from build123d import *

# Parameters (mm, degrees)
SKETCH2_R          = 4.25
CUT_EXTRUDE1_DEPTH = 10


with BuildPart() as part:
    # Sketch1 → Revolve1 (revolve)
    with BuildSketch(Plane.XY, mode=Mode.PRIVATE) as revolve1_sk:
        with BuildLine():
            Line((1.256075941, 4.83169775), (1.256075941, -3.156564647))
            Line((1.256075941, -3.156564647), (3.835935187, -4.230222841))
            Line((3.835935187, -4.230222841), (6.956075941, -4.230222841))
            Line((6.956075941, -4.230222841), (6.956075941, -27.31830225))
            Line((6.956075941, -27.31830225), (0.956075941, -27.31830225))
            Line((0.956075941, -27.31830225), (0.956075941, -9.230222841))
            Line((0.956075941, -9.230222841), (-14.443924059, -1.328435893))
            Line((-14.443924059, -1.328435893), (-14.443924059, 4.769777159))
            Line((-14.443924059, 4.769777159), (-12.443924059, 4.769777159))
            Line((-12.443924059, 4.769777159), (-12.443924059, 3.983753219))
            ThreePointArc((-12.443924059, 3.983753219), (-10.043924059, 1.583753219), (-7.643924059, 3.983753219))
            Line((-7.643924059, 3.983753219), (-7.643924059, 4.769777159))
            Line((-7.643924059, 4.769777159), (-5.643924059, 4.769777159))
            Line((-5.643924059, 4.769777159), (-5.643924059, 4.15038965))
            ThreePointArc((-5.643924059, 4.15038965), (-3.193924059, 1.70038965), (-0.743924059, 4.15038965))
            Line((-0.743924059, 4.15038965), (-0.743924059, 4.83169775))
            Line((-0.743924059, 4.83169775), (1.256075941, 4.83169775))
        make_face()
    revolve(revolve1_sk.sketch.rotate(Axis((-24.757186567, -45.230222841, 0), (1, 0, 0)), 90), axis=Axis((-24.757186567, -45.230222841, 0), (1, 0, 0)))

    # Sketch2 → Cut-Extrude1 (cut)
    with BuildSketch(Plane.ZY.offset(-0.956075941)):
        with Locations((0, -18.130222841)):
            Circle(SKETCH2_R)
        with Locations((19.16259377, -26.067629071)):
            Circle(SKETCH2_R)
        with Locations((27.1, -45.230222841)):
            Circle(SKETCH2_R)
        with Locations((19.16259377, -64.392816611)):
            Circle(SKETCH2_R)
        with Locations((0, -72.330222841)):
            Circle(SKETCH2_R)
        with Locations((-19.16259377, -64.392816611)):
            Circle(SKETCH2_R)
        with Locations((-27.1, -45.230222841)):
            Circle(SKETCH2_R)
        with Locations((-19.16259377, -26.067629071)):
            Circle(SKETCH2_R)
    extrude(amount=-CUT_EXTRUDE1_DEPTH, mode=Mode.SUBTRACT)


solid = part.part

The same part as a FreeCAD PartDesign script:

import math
import FreeCAD as App
import Part
import Sketcher
from FreeCAD import Vector
Q = App.Units.Quantity

doc = App.newDocument("Part")
params = doc.addObject("Spreadsheet::Sheet", "Params")
for row, (alias, value) in enumerate([
    ("sketch1_radius", "2.4 mm"),
    ("sketch1_width", "2 mm"),
    ("sketch1_width2", "6 mm"),
    ("sketch1_radius2", "2.45 mm"),
    ("sketch1_width3", "21.4 mm"),
    ("revolution_angle", "360 deg"),
    ("sketch2_diameter", "8.5 mm"),
    ("pocket1_length", "10 mm"),
], start=1):
    params.set(f"A{row}", alias)
    params.set(f"B{row}", "=" + value)
    params.setAlias(f"B{row}", alias)

body = doc.addObject("PartDesign::Body", "Body")

sketch1 = body.newObject("Sketcher::SketchObject", "Sketch")
sketch1.AttachmentSupport = (doc.getObject("XY_Plane"), [""])
sketch1.MapMode = "FlatFace"
sketch1.addGeometry([
    Part.LineSegment(Vector(1.3, -3.2, 0), Vector(1.3, 4.8, 0)),
    Part.LineSegment(Vector(1.3, 4.8, 0), Vector(-0.7, 4.8, 0)),
    Part.LineSegment(Vector(-0.7, 4.8, 0), Vector(-0.7, 4.2, 0)),
    Part.ArcOfCircle(Part.Circle(Vector(-3.2, 4.2, 0), Vector(0, 0, 1), 2.5), math.radians(180), math.radians(360)),
    Part.LineSegment(Vector(-5.6, 4.2, 0), Vector(-5.6, 4.8, 0)),
    Part.LineSegment(Vector(-5.6, 4.8, 0), Vector(-7.6, 4.8, 0)),
    Part.LineSegment(Vector(-7.6, 4.8, 0), Vector(-7.6, 4, 0)),
    Part.ArcOfCircle(Part.Circle(Vector(-10, 4, 0), Vector(0, 0, 1), 2.4), math.radians(180), math.radians(360)),
    Part.LineSegment(Vector(-12.4, 4, 0), Vector(-12.4, 4.8, 0)),
    Part.LineSegment(Vector(-12.4, 4.8, 0), Vector(-14.4, 4.8, 0)),
    Part.LineSegment(Vector(-14.4, 4.8, 0), Vector(-14.4, -1.3, 0)),
    Part.LineSegment(Vector(-14.4, -1.3, 0), Vector(1, -9.2, 0)),
    Part.LineSegment(Vector(1, -9.2, 0), Vector(1, -27.3, 0)),
    Part.LineSegment(Vector(1, -27.3, 0), Vector(7, -27.3, 0)),
    Part.LineSegment(Vector(7, -27.3, 0), Vector(7, -4.2, 0)),
    Part.LineSegment(Vector(7, -4.2, 0), Vector(3.8, -4.2, 0)),
    Part.LineSegment(Vector(3.8, -4.2, 0), Vector(1.3, -3.2, 0)),
], False)
sketch1.addGeometry(Part.LineSegment(Vector(-14.4, -45.2, 0), Vector(7, -45.2, 0)), True)
sketch1.addConstraint([
    Sketcher.Constraint("Coincident", 0, 2, 1, 1),
    Sketcher.Constraint("Coincident", 1, 2, 2, 1),
    Sketcher.Constraint("Tangent", 2, 2, 3, 2),
    Sketcher.Constraint("Tangent", 3, 1, 4, 1),
    Sketcher.Constraint("Coincident", 4, 2, 5, 1),
    Sketcher.Constraint("Coincident", 5, 2, 6, 1),
    Sketcher.Constraint("Tangent", 6, 2, 7, 2),
    Sketcher.Constraint("Tangent", 7, 1, 8, 1),
    Sketcher.Constraint("Coincident", 8, 2, 9, 1),
    Sketcher.Constraint("Coincident", 9, 2, 10, 1),
    Sketcher.Constraint("Coincident", 10, 2, 11, 1),
    Sketcher.Constraint("Coincident", 11, 2, 12, 1),
    Sketcher.Constraint("Coincident", 12, 2, 13, 1),
    Sketcher.Constraint("Coincident", 13, 2, 14, 1),
    Sketcher.Constraint("Coincident", 14, 2, 15, 1),
    Sketcher.Constraint("Coincident", 15, 2, 16, 1),
    Sketcher.Constraint("Coincident", 16, 2, 0, 1),
    Sketcher.Constraint("Vertical", 0),
    Sketcher.Constraint("Horizontal", 1),
    Sketcher.Constraint("Vertical", 2),
    Sketcher.Constraint("Vertical", 4),
    Sketcher.Constraint("Horizontal", 5),
    Sketcher.Constraint("Vertical", 6),
    Sketcher.Constraint("Vertical", 8),
    Sketcher.Constraint("Horizontal", 9),
    Sketcher.Constraint("Vertical", 10),
    Sketcher.Constraint("Vertical", 12),
    Sketcher.Constraint("Horizontal", 13),
    Sketcher.Constraint("Vertical", 14),
    Sketcher.Constraint("Horizontal", 15),
    Sketcher.Constraint("Horizontal", 17),
    Sketcher.Constraint("Horizontal", 5, 2, 8, 2),
    Sketcher.Constraint("Vertical", 10, 2, 17, 1),
    Sketcher.Constraint("Vertical", 14, 2, 17, 2),
    Sketcher.Constraint("Equal", 1, 5),
    Sketcher.Constraint("Equal", 5, 9),
    Sketcher.Constraint("Radius", 7, Q("2.4 mm")),
    Sketcher.Constraint("DistanceX", 1, 2, 1, 1, Q("2 mm")),
    Sketcher.Constraint("DistanceX", 13, 1, 13, 2, Q("6 mm")),
    Sketcher.Constraint("Radius", 3, Q("2.45 mm")),
    Sketcher.Constraint("DistanceX", 17, 1, 17, 2, Q("21.4 mm")),
    Sketcher.Constraint("DistanceY", 11, 2, 14, 2, Q("5 mm")),
    Sketcher.Constraint("DistanceY", 17, 1, 11, 2, Q("36 mm")),
    Sketcher.Constraint("DistanceY", 12, 2, 0, 2, Q("32.15 mm")),
    Sketcher.Constraint("DistanceX", 15, 2, 15, 1, Q("3.120141 mm")),
    Sketcher.Constraint("DistanceY", 2, 2, 2, 1, Q("0.681308 mm")),
    Sketcher.Constraint("DistanceY", 12, 2, 12, 1, Q("18.088079 mm")),
    Sketcher.Constraint("DistanceY", 0, 1, 0, 2, Q("7.988262 mm")),
    Sketcher.Constraint("DistanceY", 4, 1, 4, 2, Q("0.619388 mm")),
    Sketcher.Constraint("DistanceY", 6, 2, 6, 1, Q("0.786024 mm")),
    Sketcher.Constraint("DistanceY", 10, 2, 10, 1, Q("6.098213 mm")),
    Sketcher.Constraint("DistanceY", -1, 1, 3, 3, Q("4.15039 mm")),
    Sketcher.Constraint("DistanceX", 3, 3, -1, 1, Q("3.193924 mm")),
])
sketch1.setExpression("Constraints[36]", "Params.sketch1_radius")
sketch1.setExpression("Constraints[37]", "Params.sketch1_width")
sketch1.setExpression("Constraints[38]", "Params.sketch1_width2")
sketch1.setExpression("Constraints[39]", "Params.sketch1_radius2")
sketch1.setExpression("Constraints[40]", "Params.sketch1_width3")
revolution = body.newObject("PartDesign::Revolution", "Revolution")
revolution.Profile = sketch1
revolution.ReferenceAxis = (sketch1, ["Axis0"])
revolution.setExpression("Angle", "Params.revolution_angle")

sketch2 = body.newObject("Sketcher::SketchObject", "Sketch001")
sketch2.AttachmentSupport = (doc.getObject("YZ_Plane"), [""])
sketch2.MapMode = "FlatFace"
sketch2.AttachmentOffset = App.Placement(Vector(0, 0, 0.956076), App.Rotation())
sketch2.addGeometry([
    Part.Circle(Vector(-18.1, 0, 0), Vector(0, 0, 1), 4.2),
    Part.Circle(Vector(-26.1, 19.2, 0), Vector(0, 0, 1), 4.2),
    Part.Circle(Vector(-45.2, 27.1, 0), Vector(0, 0, 1), 4.2),
    Part.Circle(Vector(-64.4, 19.2, 0), Vector(0, 0, 1), 4.2),
    Part.Circle(Vector(-72.3, 0, 0), Vector(0, 0, 1), 4.2),
    Part.Circle(Vector(-64.4, -19.2, 0), Vector(0, 0, 1), 4.2),
    Part.Circle(Vector(-45.2, -27.1, 0), Vector(0, 0, 1), 4.2),
    Part.Circle(Vector(-26.1, -19.2, 0), Vector(0, 0, 1), 4.2),
], False)
sketch2.addConstraint([
    Sketcher.Constraint("Equal", 0, 1),
    Sketcher.Constraint("Equal", 1, 2),
    Sketcher.Constraint("Equal", 2, 3),
    Sketcher.Constraint("Equal", 3, 4),
    Sketcher.Constraint("Equal", 4, 5),
    Sketcher.Constraint("Equal", 5, 6),
    Sketcher.Constraint("Equal", 6, 7),
    Sketcher.Constraint("Symmetric", 3, 3, 5, 3, -1),
    Sketcher.Constraint("Symmetric", 2, 3, 6, 3, -1),
    Sketcher.Constraint("Symmetric", 1, 3, 7, 3, -1),
    Sketcher.Constraint("PointOnObject", 0, 3, -1),
    Sketcher.Constraint("PointOnObject", 4, 3, -1),
    Sketcher.Constraint("Horizontal", 1, 3, 3, 3),
    Sketcher.Constraint("Diameter", 0, Q("8.5 mm")),
    Sketcher.Constraint("DistanceY", -1, 1, 2, 3, Q("27.1 mm")),
    Sketcher.Constraint("DistanceX", 2, 3, 0, 3, Q("27.1 mm")),
    Sketcher.Constraint("DistanceX", 4, 3, 2, 3, Q("27.1 mm")),
    Sketcher.Constraint("DistanceX", 1, 3, -1, 1, Q("26.067629 mm")),
    Sketcher.Constraint("DistanceX", 0, 3, -1, 1, Q("18.130223 mm")),
    Sketcher.Constraint("DistanceY", -1, 1, 1, 3, Q("19.162594 mm")),
    Sketcher.Constraint("DistanceX", 3, 3, -1, 1, Q("64.392817 mm")),
])
sketch2.setExpression("Constraints[13]", "Params.sketch2_diameter")
pocket1 = body.newObject("PartDesign::Pocket", "Pocket")
pocket1.Profile = sketch2
pocket1.setExpression("Length", "Params.pocket1_length")
pocket1.Reversed = True

doc.recompute()
